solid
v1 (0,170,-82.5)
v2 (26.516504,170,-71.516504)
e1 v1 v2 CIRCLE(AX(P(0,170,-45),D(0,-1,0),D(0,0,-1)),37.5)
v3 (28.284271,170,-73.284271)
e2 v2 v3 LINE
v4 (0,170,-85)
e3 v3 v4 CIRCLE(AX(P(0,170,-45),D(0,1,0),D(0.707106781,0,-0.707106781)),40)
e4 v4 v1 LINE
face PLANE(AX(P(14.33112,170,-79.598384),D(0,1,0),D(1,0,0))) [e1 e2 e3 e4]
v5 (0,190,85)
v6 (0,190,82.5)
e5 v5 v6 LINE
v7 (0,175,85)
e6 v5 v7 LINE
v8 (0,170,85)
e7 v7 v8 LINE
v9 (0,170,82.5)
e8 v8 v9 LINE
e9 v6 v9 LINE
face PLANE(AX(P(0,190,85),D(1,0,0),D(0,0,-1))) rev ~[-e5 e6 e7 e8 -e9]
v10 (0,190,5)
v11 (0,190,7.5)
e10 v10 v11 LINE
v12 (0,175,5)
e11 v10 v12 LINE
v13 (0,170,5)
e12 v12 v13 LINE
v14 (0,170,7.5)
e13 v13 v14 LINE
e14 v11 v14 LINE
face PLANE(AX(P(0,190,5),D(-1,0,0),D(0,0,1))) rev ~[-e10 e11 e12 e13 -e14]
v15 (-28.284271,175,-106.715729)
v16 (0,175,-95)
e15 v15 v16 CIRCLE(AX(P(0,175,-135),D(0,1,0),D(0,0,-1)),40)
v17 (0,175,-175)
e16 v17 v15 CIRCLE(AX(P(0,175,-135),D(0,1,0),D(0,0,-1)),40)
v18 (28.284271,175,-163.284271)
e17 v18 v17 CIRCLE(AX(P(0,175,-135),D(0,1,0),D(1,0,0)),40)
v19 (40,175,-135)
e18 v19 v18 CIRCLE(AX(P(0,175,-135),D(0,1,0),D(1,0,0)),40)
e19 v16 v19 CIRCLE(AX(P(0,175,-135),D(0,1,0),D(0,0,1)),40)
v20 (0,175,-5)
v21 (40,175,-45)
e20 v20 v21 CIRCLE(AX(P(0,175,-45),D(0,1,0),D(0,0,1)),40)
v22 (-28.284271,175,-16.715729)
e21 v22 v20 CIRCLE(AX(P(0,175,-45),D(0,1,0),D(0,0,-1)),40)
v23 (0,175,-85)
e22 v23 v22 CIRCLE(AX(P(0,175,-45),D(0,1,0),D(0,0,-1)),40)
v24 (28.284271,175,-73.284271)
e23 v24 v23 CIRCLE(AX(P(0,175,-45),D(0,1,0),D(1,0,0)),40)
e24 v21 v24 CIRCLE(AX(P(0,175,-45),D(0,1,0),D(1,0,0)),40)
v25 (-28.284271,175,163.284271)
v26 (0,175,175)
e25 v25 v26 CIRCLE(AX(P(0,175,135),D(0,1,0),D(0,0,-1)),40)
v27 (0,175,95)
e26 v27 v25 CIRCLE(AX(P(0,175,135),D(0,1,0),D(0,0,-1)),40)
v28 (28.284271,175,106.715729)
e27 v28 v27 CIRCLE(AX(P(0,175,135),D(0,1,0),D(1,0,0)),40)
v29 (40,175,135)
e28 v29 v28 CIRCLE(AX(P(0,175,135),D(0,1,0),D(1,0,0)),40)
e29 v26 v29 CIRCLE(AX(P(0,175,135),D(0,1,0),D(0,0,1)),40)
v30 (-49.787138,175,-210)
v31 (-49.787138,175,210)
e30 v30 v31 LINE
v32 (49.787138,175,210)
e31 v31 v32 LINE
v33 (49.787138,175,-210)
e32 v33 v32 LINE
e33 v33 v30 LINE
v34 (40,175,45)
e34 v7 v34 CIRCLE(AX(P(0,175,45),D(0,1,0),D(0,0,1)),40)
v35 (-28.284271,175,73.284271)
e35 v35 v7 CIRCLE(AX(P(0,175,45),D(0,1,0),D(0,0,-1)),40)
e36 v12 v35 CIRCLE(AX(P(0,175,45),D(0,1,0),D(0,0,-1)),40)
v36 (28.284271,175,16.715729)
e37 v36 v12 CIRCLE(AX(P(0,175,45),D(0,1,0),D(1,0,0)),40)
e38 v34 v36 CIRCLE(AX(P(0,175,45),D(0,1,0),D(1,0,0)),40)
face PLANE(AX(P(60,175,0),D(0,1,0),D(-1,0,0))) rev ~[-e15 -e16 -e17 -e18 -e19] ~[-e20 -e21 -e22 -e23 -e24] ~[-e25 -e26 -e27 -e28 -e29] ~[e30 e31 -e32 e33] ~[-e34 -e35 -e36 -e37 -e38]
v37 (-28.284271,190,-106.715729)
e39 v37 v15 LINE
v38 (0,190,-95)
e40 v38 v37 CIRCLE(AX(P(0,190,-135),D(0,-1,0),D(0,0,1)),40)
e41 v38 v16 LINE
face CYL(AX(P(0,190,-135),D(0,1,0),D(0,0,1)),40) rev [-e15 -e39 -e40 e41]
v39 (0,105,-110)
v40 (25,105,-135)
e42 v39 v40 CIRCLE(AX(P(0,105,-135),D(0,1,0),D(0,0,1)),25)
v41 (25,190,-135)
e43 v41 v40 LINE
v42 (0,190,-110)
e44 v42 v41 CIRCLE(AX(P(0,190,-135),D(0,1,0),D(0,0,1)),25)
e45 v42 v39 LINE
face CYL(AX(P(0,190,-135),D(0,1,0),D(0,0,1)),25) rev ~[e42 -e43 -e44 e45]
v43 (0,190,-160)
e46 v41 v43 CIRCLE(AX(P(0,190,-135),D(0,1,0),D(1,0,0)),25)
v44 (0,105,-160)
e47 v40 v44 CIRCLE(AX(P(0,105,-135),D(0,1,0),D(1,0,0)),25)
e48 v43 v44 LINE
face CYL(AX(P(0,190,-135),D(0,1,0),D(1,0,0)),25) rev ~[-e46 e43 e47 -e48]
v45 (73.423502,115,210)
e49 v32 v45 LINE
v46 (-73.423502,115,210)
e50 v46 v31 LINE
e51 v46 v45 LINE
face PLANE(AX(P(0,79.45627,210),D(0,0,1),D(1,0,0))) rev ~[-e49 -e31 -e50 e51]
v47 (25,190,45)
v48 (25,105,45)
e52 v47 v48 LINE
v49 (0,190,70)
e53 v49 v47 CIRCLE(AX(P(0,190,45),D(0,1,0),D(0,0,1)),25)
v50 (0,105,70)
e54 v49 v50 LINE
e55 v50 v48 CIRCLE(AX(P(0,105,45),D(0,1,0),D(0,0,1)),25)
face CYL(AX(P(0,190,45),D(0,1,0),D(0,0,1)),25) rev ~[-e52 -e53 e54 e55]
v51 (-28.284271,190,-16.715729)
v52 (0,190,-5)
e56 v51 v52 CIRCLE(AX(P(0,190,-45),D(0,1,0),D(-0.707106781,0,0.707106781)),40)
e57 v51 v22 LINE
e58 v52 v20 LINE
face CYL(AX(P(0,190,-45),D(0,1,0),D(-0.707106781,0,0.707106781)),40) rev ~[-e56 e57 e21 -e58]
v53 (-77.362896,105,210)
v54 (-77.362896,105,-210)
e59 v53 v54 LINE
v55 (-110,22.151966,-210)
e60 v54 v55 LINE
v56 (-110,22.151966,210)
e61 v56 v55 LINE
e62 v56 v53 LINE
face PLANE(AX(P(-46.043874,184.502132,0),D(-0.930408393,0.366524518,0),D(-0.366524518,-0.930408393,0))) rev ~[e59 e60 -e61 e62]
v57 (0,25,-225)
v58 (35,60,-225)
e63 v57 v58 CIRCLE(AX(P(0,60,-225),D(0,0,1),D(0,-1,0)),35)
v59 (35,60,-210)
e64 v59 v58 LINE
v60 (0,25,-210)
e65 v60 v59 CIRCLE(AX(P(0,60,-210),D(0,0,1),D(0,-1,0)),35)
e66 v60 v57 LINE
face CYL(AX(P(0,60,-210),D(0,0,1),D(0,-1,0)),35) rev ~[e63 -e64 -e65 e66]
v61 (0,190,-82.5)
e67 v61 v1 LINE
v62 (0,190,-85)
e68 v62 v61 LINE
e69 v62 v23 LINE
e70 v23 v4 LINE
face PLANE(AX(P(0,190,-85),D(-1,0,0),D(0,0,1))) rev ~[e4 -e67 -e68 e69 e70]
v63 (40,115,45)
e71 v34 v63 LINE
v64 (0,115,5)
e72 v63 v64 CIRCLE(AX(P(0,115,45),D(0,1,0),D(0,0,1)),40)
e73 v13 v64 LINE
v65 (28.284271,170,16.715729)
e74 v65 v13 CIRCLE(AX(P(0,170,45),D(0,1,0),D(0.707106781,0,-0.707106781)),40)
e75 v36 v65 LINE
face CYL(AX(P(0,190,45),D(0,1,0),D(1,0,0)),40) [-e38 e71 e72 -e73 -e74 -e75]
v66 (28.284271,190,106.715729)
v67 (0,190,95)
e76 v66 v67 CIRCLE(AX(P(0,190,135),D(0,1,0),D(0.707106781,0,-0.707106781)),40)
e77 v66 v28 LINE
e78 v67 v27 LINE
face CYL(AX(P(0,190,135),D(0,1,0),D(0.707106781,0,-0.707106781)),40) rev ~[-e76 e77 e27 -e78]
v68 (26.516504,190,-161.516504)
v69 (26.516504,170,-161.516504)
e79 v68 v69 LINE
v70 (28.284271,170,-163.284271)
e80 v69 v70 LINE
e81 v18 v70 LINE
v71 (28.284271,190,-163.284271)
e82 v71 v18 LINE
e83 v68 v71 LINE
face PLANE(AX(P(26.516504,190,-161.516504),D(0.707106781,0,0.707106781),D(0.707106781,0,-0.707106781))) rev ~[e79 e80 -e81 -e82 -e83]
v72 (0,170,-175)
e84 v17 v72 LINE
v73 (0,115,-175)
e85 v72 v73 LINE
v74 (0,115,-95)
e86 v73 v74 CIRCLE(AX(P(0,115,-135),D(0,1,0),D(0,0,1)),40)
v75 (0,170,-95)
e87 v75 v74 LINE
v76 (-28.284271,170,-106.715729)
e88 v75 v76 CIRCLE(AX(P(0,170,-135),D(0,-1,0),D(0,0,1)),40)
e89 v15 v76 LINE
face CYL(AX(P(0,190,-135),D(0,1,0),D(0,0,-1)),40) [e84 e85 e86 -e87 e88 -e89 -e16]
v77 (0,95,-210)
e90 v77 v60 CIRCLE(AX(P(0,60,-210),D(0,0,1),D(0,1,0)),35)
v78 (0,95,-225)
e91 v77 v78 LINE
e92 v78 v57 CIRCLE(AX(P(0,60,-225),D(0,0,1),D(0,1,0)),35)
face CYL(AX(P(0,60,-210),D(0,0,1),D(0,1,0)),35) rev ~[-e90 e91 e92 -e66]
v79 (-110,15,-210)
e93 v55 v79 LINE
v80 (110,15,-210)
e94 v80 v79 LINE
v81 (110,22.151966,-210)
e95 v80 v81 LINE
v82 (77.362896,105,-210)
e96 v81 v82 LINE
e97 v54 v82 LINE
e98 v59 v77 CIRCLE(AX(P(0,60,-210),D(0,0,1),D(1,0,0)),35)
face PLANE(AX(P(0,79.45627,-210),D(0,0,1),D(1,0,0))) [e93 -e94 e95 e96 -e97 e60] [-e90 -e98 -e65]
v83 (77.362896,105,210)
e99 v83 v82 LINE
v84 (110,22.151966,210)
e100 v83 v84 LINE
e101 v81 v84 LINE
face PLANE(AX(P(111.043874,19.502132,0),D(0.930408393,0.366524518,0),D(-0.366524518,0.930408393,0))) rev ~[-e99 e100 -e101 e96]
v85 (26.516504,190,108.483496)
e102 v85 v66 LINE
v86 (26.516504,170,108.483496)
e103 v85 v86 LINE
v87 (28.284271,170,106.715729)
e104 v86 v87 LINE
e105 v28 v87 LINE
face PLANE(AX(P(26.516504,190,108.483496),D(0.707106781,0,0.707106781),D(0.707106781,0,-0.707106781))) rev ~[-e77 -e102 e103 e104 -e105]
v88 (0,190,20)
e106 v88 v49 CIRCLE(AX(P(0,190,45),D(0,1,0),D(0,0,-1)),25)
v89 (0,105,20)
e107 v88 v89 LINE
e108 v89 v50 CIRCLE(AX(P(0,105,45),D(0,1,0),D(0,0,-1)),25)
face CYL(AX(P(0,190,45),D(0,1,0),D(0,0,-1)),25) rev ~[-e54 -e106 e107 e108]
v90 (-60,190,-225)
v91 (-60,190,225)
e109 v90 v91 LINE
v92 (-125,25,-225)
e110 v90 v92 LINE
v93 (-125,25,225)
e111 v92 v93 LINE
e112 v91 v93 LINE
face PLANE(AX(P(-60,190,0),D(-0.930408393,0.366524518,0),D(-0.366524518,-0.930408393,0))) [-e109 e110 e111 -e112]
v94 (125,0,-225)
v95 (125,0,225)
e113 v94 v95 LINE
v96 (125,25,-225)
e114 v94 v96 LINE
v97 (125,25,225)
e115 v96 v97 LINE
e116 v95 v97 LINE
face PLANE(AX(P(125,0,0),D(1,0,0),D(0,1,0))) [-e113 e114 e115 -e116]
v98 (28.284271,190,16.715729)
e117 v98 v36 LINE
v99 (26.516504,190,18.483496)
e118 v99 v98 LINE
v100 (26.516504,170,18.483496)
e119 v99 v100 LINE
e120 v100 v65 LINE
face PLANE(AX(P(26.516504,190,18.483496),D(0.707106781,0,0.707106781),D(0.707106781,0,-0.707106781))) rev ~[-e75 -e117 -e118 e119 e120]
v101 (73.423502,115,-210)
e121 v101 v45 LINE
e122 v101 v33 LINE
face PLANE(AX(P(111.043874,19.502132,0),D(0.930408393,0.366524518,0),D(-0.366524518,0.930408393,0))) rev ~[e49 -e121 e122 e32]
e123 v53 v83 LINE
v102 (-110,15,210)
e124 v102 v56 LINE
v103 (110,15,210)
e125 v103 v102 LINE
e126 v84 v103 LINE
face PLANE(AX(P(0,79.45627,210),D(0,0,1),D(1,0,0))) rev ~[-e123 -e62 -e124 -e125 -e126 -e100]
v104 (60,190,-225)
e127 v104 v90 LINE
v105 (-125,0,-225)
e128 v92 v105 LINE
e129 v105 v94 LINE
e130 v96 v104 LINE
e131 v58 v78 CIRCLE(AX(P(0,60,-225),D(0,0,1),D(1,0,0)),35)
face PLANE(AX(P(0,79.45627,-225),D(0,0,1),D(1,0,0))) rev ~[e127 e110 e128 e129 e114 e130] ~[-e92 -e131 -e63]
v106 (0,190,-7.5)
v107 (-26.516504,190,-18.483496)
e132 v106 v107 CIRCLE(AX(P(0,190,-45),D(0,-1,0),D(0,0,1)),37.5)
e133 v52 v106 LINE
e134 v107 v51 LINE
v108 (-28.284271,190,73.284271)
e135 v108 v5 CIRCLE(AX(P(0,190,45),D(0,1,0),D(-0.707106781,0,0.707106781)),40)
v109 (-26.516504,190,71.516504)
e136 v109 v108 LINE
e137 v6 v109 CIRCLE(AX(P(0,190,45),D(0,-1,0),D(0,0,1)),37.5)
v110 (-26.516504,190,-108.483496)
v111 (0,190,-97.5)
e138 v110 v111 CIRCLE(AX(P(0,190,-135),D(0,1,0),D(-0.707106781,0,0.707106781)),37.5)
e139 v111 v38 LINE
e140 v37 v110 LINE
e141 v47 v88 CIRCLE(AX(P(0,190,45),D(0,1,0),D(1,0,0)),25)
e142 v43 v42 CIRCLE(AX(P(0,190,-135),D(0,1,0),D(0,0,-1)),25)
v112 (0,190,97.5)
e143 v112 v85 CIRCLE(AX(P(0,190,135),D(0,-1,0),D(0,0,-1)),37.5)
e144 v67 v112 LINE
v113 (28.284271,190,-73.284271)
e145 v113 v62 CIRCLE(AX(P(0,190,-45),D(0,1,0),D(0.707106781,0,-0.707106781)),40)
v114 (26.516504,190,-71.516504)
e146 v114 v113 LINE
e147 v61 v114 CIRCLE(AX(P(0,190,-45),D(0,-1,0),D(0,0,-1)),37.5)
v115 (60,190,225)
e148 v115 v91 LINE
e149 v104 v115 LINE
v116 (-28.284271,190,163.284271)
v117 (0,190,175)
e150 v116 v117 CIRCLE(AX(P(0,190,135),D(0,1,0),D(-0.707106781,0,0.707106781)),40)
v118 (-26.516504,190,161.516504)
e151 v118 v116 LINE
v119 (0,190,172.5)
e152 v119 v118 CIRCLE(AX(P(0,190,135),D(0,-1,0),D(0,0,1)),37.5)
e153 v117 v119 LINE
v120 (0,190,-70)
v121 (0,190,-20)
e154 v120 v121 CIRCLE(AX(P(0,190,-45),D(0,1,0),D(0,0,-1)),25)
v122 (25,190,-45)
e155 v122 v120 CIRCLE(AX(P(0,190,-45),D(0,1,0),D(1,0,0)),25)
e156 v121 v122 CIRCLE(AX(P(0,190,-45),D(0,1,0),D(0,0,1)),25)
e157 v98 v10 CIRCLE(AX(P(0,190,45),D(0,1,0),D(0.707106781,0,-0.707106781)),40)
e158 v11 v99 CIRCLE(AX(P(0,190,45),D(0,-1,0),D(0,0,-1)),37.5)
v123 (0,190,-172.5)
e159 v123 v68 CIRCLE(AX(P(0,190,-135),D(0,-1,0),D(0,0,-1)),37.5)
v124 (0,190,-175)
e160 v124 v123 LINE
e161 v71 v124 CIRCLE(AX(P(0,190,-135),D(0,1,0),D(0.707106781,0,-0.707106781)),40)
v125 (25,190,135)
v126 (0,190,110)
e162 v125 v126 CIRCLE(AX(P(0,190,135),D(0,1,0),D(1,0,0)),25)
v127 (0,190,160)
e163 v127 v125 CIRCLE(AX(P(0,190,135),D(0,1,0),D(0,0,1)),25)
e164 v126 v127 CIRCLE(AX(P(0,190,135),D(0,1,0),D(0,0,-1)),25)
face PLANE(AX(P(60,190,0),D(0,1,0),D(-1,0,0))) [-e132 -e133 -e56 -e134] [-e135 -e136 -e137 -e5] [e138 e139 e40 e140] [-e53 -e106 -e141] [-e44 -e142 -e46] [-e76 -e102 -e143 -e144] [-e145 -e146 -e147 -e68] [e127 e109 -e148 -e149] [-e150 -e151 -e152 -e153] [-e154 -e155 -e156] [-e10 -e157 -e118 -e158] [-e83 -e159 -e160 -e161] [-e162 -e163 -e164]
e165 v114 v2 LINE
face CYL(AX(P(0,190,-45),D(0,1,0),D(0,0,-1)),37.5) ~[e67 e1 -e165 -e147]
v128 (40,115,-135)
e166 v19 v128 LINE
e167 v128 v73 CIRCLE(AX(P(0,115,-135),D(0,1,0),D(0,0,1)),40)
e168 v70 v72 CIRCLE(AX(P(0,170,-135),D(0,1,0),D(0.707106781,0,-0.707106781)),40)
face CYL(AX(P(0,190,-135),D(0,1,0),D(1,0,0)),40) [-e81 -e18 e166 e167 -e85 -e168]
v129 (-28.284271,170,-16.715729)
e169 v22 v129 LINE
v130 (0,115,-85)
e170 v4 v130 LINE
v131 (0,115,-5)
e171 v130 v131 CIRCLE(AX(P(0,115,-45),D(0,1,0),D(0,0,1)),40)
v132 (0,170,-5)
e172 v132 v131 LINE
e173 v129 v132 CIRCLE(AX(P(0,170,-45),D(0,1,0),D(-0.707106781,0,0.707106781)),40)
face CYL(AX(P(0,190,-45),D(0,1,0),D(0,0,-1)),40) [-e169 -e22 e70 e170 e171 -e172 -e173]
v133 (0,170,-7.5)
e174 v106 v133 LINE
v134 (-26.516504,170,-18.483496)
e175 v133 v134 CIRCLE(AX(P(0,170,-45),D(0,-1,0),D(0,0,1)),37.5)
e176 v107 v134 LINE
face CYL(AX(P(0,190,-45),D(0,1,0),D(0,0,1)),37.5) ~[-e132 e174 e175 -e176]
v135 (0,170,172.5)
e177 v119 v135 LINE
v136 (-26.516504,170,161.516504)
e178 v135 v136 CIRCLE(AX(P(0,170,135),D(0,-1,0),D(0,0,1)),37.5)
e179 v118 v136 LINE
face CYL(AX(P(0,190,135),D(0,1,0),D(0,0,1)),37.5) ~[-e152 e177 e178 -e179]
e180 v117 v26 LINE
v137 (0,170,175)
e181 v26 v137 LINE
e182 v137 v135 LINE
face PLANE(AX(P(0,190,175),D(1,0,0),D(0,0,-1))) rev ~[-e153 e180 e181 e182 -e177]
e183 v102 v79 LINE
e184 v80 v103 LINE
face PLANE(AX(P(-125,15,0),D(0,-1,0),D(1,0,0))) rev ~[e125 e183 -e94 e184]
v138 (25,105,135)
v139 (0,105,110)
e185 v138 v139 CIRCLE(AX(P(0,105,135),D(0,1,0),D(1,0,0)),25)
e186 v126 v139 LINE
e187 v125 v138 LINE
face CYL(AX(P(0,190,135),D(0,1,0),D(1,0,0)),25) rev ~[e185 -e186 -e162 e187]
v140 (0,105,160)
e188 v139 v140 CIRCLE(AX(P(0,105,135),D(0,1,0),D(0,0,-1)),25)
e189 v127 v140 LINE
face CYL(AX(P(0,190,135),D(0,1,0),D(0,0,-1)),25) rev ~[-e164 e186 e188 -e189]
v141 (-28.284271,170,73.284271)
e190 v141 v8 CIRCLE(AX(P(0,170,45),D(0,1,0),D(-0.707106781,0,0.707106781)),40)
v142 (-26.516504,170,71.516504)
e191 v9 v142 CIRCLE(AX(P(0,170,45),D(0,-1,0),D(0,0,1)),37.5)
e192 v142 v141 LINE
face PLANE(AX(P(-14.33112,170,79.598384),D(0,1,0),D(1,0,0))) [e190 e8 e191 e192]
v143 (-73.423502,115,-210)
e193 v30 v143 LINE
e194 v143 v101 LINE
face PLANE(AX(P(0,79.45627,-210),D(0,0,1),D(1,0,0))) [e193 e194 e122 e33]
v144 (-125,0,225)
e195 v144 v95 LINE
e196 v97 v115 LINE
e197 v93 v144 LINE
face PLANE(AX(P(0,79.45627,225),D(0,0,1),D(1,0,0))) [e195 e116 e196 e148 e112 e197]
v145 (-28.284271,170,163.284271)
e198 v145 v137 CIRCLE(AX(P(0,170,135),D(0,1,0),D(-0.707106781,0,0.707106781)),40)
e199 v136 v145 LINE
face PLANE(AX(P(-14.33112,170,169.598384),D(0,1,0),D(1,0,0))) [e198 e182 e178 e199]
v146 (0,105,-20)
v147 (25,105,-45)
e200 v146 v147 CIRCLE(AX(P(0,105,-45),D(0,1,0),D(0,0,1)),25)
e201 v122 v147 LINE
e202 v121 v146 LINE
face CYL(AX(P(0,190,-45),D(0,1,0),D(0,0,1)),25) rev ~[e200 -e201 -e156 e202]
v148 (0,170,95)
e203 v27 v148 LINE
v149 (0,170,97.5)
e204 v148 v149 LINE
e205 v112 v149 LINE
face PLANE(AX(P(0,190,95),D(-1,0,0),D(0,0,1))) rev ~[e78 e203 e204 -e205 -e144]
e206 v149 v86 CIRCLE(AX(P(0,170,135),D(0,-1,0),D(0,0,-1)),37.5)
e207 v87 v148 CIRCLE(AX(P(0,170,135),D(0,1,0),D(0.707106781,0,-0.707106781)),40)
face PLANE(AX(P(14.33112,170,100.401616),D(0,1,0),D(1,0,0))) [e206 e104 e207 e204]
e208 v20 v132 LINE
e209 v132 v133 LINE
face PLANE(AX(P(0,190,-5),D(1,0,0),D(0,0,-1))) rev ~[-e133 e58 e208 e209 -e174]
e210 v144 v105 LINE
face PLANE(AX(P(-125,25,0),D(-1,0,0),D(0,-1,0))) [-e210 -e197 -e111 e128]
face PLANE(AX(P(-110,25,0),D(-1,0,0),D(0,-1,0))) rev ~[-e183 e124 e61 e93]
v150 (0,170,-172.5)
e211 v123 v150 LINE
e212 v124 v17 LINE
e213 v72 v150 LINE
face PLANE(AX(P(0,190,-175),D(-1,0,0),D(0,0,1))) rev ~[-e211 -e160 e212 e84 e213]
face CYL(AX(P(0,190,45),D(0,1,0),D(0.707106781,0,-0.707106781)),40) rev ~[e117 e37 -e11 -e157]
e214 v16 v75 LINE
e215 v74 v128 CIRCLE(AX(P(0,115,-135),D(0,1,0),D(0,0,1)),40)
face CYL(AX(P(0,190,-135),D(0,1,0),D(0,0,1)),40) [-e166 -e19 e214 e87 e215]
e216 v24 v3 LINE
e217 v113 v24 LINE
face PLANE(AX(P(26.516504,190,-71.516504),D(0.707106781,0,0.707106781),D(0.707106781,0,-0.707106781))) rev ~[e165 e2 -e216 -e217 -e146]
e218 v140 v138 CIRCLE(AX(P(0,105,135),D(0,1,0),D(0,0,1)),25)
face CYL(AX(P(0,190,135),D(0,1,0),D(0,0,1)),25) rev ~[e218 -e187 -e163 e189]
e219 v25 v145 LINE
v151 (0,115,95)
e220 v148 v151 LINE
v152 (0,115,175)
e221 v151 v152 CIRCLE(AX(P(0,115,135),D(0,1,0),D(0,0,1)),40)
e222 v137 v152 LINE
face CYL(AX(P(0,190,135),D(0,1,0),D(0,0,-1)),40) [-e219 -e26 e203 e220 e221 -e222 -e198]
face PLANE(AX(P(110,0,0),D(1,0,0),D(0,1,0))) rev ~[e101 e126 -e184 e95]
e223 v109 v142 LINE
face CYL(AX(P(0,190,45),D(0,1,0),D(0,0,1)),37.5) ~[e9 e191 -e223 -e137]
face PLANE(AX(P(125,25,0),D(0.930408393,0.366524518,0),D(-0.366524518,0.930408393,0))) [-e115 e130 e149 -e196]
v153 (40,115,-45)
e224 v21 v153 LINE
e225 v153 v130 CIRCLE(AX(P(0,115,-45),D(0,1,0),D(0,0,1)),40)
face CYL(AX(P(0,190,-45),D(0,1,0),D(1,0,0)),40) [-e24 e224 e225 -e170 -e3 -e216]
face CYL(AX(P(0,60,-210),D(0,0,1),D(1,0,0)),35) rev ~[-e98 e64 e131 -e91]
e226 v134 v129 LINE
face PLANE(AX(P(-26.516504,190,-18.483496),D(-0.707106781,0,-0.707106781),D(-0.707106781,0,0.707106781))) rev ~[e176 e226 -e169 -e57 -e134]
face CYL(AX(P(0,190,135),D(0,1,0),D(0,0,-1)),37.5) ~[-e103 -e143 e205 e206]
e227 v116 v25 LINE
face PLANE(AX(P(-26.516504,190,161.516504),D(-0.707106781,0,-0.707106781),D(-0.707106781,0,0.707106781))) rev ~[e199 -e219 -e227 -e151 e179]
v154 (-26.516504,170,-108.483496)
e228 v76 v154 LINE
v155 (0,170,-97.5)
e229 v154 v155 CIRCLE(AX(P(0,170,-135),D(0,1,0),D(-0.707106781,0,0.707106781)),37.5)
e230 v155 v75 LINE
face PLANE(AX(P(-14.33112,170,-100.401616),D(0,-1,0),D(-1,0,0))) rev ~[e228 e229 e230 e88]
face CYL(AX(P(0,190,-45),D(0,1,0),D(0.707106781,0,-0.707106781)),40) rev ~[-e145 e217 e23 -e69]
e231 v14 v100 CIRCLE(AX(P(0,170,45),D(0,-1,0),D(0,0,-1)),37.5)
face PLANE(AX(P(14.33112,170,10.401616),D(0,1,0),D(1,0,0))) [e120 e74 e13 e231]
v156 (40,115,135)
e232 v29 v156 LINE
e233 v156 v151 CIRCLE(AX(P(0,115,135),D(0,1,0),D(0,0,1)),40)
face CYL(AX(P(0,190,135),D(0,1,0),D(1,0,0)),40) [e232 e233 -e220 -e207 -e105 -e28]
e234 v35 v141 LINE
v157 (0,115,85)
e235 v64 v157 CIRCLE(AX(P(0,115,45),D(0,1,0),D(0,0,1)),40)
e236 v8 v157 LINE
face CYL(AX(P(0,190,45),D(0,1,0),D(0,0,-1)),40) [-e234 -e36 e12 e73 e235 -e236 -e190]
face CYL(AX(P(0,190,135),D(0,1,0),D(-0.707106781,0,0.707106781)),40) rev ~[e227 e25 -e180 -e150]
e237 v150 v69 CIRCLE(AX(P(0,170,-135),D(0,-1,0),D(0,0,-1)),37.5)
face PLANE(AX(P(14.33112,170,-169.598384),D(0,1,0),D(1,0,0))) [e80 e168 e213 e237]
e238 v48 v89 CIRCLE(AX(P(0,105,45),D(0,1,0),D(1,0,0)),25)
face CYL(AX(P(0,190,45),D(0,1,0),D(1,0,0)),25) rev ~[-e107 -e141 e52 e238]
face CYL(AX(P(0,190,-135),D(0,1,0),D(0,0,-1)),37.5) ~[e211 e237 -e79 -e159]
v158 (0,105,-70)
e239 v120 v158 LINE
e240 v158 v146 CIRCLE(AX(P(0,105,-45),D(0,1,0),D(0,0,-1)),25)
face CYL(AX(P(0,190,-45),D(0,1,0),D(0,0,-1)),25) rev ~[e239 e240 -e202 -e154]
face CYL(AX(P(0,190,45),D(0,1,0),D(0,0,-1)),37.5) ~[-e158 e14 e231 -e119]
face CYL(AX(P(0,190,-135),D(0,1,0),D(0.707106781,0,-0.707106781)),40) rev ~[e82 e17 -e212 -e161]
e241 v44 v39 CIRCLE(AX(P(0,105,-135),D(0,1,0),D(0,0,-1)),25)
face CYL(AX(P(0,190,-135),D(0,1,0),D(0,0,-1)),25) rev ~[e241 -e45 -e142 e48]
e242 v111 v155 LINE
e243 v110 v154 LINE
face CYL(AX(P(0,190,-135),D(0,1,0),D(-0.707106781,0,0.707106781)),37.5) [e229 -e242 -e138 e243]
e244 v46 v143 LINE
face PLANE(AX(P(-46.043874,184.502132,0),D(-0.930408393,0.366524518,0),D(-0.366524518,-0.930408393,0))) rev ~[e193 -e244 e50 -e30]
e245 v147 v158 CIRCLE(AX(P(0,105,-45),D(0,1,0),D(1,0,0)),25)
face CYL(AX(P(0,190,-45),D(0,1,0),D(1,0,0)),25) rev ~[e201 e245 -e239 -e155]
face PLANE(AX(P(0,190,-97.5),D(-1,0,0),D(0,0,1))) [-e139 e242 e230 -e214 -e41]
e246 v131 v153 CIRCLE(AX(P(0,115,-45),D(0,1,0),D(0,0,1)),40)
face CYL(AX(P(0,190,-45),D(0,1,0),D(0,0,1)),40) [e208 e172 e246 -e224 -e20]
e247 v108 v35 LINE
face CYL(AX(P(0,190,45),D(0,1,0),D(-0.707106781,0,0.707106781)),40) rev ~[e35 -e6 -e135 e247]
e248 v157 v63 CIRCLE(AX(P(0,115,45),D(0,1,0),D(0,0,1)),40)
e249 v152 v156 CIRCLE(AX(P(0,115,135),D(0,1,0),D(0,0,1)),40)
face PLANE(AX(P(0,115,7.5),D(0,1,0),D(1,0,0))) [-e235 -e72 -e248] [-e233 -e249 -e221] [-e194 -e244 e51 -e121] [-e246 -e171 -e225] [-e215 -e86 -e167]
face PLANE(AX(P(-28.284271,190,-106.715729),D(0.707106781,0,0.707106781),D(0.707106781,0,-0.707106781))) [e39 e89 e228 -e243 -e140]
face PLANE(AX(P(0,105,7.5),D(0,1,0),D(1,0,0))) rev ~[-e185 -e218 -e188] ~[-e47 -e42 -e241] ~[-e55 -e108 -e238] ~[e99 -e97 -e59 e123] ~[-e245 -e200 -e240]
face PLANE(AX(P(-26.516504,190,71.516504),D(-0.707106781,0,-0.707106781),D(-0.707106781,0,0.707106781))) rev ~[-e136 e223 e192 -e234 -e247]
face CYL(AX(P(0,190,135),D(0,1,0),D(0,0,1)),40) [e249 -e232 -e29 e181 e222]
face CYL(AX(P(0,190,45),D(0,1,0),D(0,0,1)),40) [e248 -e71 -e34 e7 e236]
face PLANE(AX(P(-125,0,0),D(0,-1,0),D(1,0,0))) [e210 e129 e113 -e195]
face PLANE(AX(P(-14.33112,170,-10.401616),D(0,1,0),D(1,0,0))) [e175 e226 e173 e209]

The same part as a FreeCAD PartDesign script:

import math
import FreeCAD as App
import Part
import Sketcher
Q = App.Units.Quantity


def faces_at(feature, points):
    """Names of the faces that lie closest to the given points."""
    faces = feature.Shape.Faces
    near = lambda p: min(range(len(faces)), key=lambda i: faces[i].distToShape(Part.Vertex(*p))[0])
    return sorted({f"Face{near(p) + 1}" for p in points})

doc = App.newDocument("Part")
body = doc.addObject("PartDesign::Body", "Body")

sketch1 = doc.addObject("Sketcher::SketchObject", "Sketch")
body.addObject(sketch1)
sketch1.AttachmentSupport = (doc.XY_Plane, [""])
sketch1.MapMode = "FlatFace"
sketch1.addGeometry([
    Part.LineSegment(App.Vector(-125, 0, 0), App.Vector(125, 0, 0)),
    Part.LineSegment(App.Vector(125, 0, 0), App.Vector(125, 25, 0)),
    Part.LineSegment(App.Vector(125, 25, 0), App.Vector(60, 190, 0)),
    Part.LineSegment(App.Vector(60, 190, 0), App.Vector(-60, 190, 0)),
    Part.LineSegment(App.Vector(-60, 190, 0), App.Vector(-125, 25, 0)),
    Part.LineSegment(App.Vector(-125, 25, 0), App.Vector(-125, 0, 0)),
], False)
sketch1.addConstraint([
    Sketcher.Constraint("Coincident", 0, 2, 1, 1),
    Sketcher.Constraint("Coincident", 1, 2, 2, 1),
    Sketcher.Constraint("Coincident", 2, 2, 3, 1),
    Sketcher.Constraint("Coincident", 3, 2, 4, 1),
    Sketcher.Constraint("Coincident", 4, 2, 5, 1),
    Sketcher.Constraint("Coincident", 5, 2, 0, 1),
    Sketcher.Constraint("Horizontal", 0),
    Sketcher.Constraint("Vertical", 1),
    Sketcher.Constraint("Horizontal", 3),
    Sketcher.Constraint("Vertical", 5),
    Sketcher.Constraint("Symmetric", 0, 2, 5, 2, -1, 1),
    Sketcher.Constraint("Horizontal", 1, 2, 4, 2),
    Sketcher.Constraint("Equal", 2, 4),
    Sketcher.Constraint("DistanceX", 0, 1, 0, 2, Q("250 mm")),
    Sketcher.Constraint("DistanceX", 3, 2, 3, 1, Q("120 mm")),
    Sketcher.Constraint("DistanceY", 1, 1, 1, 2, Q("25 mm")),
    Sketcher.Constraint("DistanceY", -1, 1, 2, 2, Q("190 mm")),
])
pad1 = doc.addObject("PartDesign::Pad", "Pad")
body.addObject(pad1)
pad1.Profile = sketch1
pad1.Length = 450
pad1.Midplane = True

sketch2 = doc.addObject("Sketcher::SketchObject", "Sketch001")
body.addObject(sketch2)
sketch2.AttachmentSupport = (doc.XZ_Plane, [""])
sketch2.MapMode = "FlatFace"
sketch2.AttachmentOffset = App.Placement(App.Vector(0, 0, -190), App.Rotation())
sketch2.addGeometry([
    Part.ArcOfCircle(Part.Circle(App.Vector(0, 135, 0), App.Vector(0, 0, 1), 25), math.radians(90), math.radians(270)),
    Part.ArcOfCircle(Part.Circle(App.Vector(0, 135, 0), App.Vector(0, 0, 1), 25), math.radians(0), math.radians(90)),
    Part.ArcOfCircle(Part.Circle(App.Vector(0, 135, 0), App.Vector(0, 0, 1), 25), math.radians(-90), math.radians(0)),
    Part.ArcOfCircle(Part.Circle(App.Vector(0, 45, 0), App.Vector(0, 0, 1), 25), math.radians(90), math.radians(270)),
    Part.ArcOfCircle(Part.Circle(App.Vector(0, 45, 0), App.Vector(0, 0, 1), 25), math.radians(0), math.radians(90)),
    Part.ArcOfCircle(Part.Circle(App.Vector(0, 45, 0), App.Vector(0, 0, 1), 25), math.radians(-90), math.radians(0)),
    Part.ArcOfCircle(Part.Circle(App.Vector(0, -45, 0), App.Vector(0, 0, 1), 25), math.radians(90), math.radians(270)),
    Part.ArcOfCircle(Part.Circle(App.Vector(0, -45, 0), App.Vector(0, 0, 1), 25), math.radians(0), math.radians(90)),
    Part.ArcOfCircle(Part.Circle(App.Vector(0, -45, 0), App.Vector(0, 0, 1), 25), math.radians(-90), math.radians(0)),
    Part.ArcOfCircle(Part.Circle(App.Vector(0, -135, 0), App.Vector(0, 0, 1), 25), math.radians(90), math.radians(270)),
    Part.ArcOfCircle(Part.Circle(App.Vector(0, -135, 0), App.Vector(0, 0, 1), 25), math.radians(0), math.radians(90)),
    Part.ArcOfCircle(Part.Circle(App.Vector(0, -135, 0), App.Vector(0, 0, 1), 25), math.radians(-90), math.radians(0)),
], False)
sketch2.addConstraint([
    Sketcher.Constraint("Tangent", 0, 1, 1, 2),
    Sketcher.Constraint("Tangent", 1, 1, 2, 2),
    Sketcher.Constraint("Tangent", 2, 1, 0, 2),
    Sketcher.Constraint("Tangent", 3, 1, 4, 2),
    Sketcher.Constraint("Tangent", 4, 1, 5, 2),
    Sketcher.Constraint("Tangent", 5, 1, 3, 2),
    Sketcher.Constraint("Tangent", 6, 1, 7, 2),
    Sketcher.Constraint("Tangent", 7, 1, 8, 2),
    Sketcher.Constraint("Tangent", 8, 1, 6, 2),
    Sketcher.Constraint("Tangent", 9, 1, 10, 2),
    Sketcher.Constraint("Tangent", 10, 1, 11, 2),
    Sketcher.Constraint("Tangent", 11, 1, 9, 2),
    Sketcher.Constraint("Equal", 2, 3),
    Sketcher.Constraint("Equal", 5, 6),
    Sketcher.Constraint("Equal", 8, 9),
    Sketcher.Constraint("Symmetric", 3, 3, 6, 3, -1, 1),
    Sketcher.Constraint("Symmetric", 0, 3, 9, 3, -1, 1),
    Sketcher.Constraint("Symmetric", 4, 1, 7, 1, -1),
    Sketcher.Constraint("Symmetric", 1, 1, 10, 1, -1),
    Sketcher.Constraint("PointOnObject", 0, 1, -2),
    Sketcher.Constraint("PointOnObject", 2, 1, -2),
    Sketcher.Constraint("PointOnObject", 3, 1, -2),
    Sketcher.Constraint("PointOnObject", 5, 1, -2),
    Sketcher.Constraint("PointOnObject", 6, 1, -2),
    Sketcher.Constraint("PointOnObject", 8, 1, -2),
    Sketcher.Constraint("PointOnObject", 9, 1, -2),
    Sketcher.Constraint("PointOnObject", 11, 1, -2),
    Sketcher.Constraint("Horizontal", 2, 3, 1, 1),
    Sketcher.Constraint("Horizontal", 5, 3, 4, 1),
    Sketcher.Constraint("Radius", 0, Q("25 mm")),
    Sketcher.Constraint("DistanceY", -1, 1, 0, 3, Q("135 mm")),
    Sketcher.Constraint("DistanceY", -1, 1, 3, 3, Q("45 mm")),
])
pocket1 = doc.addObject("PartDesign::Pocket", "Pocket")
body.addObject(pocket1)
pocket1.Profile = sketch2
pocket1.Length = 90
pocket1.Reversed = True
doc.recompute()

thickness = doc.addObject("PartDesign::Thickness", "Thickness")
body.addObject(thickness)
thickness.Base = (pocket1, faces_at(pocket1, [(0, 95, 225)]))
thickness.Value = 15
thickness.Reversed = True
thickness.Join = "Intersection"

sketch3 = doc.addObject("Sketcher::SketchObject", "Sketch002")
body.addObject(sketch3)
sketch3.AttachmentSupport = (doc.XZ_Plane, [""])
sketch3.MapMode = "FlatFace"
sketch3.AttachmentOffset = App.Placement(App.Vector(0, 0, -105), App.Rotation())
sketch3.addGeometry([
    Part.Circle(App.Vector(0, -135, 0), App.Vector(0, 0, 1), 40),
    Part.Circle(App.Vector(0, -45, 0), App.Vector(0, 0, 1), 40),
    Part.Circle(App.Vector(0, 45, 0), App.Vector(0, 0, 1), 40),
    Part.Circle(App.Vector(0, 135, 0), App.Vector(0, 0, 1), 40),
], False)
sketch3.addConstraint([
    Sketcher.Constraint("Equal", 0, 1),
    Sketcher.Constraint("Equal", 1, 2),
    Sketcher.Constraint("Equal", 2, 3),
    Sketcher.Constraint("Symmetric", 1, 3, 2, 3, -1, 1),
    Sketcher.Constraint("Symmetric", 0, 3, 3, 3, -1, 1),
    Sketcher.Constraint("PointOnObject", 0, 3, -2),
    Sketcher.Constraint("PointOnObject", 1, 3, -2),
    Sketcher.Constraint("Diameter", 0, Q("80 mm")),
    Sketcher.Constraint("DistanceY", 0, 3, -1, 1, Q("135 mm")),
    Sketcher.Constraint("DistanceY", 1, 3, -1, 1, Q("45 mm")),
])
pocket2 = doc.addObject("PartDesign::Pocket", "Pocket001")
body.addObject(pocket2)
pocket2.Profile = sketch3
pocket2.Length = 20
pocket2.Reversed = True

sketch4 = doc.addObject("Sketcher::SketchObject", "Sketch003")
body.addObject(sketch4)
sketch4.AttachmentSupport = (doc.XZ_Plane, [""])
sketch4.MapMode = "FlatFace"
sketch4.AttachmentOffset = App.Placement(App.Vector(0, 0, -115), App.Rotation())
sketch4.addGeometry([
    Part.LineSegment(App.Vector(-77, -210, 0), App.Vector(-77, 225, 0)),
    Part.LineSegment(App.Vector(-77, 225, 0), App.Vector(77, 225, 0)),
    Part.LineSegment(App.Vector(77, 225, 0), App.Vector(77, -210, 0)),
    Part.LineSegment(App.Vector(77, -210, 0), App.Vector(-77, -210, 0)),
    Part.Circle(App.Vector(0, 135, 0), App.Vector(0, 0, 1), 40),
    Part.Circle(App.Vector(0, 45, 0), App.Vector(0, 0, 1), 40),
    Part.Circle(App.Vector(0, -45, 0), App.Vector(0, 0, 1), 40),
    Part.Circle(App.Vector(0, -135, 0), App.Vector(0, 0, 1), 40),
], False)
sketch4.addConstraint([
    Sketcher.Constraint("Coincident", 0, 2, 1, 1),
    Sketcher.Constraint("Coincident", 1, 2, 2, 1),
    Sketcher.Constraint("Coincident", 2, 2, 3, 1),
    Sketcher.Constraint("Coincident", 3, 2, 0, 1),
    Sketcher.Constraint("Vertical", 0),
    Sketcher.Constraint("Horizontal", 1),
    Sketcher.Constraint("Vertical", 2),
    Sketcher.Constraint("Horizontal", 3),
    Sketcher.Constraint("Equal", 4, 5),
    Sketcher.Constraint("Equal", 5, 6),
    Sketcher.Constraint("Equal", 6, 7),
    Sketcher.Constraint("Symmetric", 5, 3, 6, 3, -1, 1),
    Sketcher.Constraint("Symmetric", 4, 3, 7, 3, -1, 1),
    Sketcher.Constraint("PointOnObject", 4, 3, -2),
    Sketcher.Constraint("PointOnObject", 5, 3, -2),
    Sketcher.Constraint("Diameter", 4, Q("80 mm")),
    Sketcher.Constraint("DistanceY", 0, 1, 0, 2, Q("435 mm")),
    Sketcher.Constraint("DistanceY", -1, 1, 4, 3, Q("135 mm")),
    Sketcher.Constraint("DistanceY", -1, 1, 5, 3, Q("45 mm")),
    Sketcher.Constraint("DistanceY", -1, 1, 0, 2, Q("225 mm")),
    Sketcher.Constraint("DistanceX", 1, 1, 1, 2, Q("154.725792 mm")),
    Sketcher.Constraint("DistanceX", 0, 2, -1, 1, Q("77.362896 mm")),
])
pad2 = doc.addObject("PartDesign::Pad", "Pad001")
body.addObject(pad2)
pad2.Profile = sketch4
pad2.Length = 10

sketch5 = doc.addObject("Sketcher::SketchObject", "Sketch004")
body.addObject(sketch5)
sketch5.AttachmentSupport = (doc.XY_Plane, [""])
sketch5.MapMode = "FlatFace"
sketch5.AttachmentOffset = App.Placement(App.Vector(0, 0, 225), App.Rotation())
sketch5.addGeometry([
    Part.LineSegment(App.Vector(-125, 25, 0), App.Vector(-125, 0, 0)),
    Part.LineSegment(App.Vector(-125, 0, 0), App.Vector(125, 0, 0)),
    Part.LineSegment(App.Vector(125, 0, 0), App.Vector(125, 25, 0)),
    Part.LineSegment(App.Vector(125, 25, 0), App.Vector(60, 190, 0)),
    Part.LineSegment(App.Vector(60, 190, 0), App.Vector(-60, 190, 0)),
    Part.LineSegment(App.Vector(-60, 190, 0), App.Vector(-125, 25, 0)),
], False)
sketch5.addConstraint([
    Sketcher.Constraint("Coincident", 0, 2, 1, 1),
    Sketcher.Constraint("Coincident", 1, 2, 2, 1),
    Sketcher.Constraint("Coincident", 2, 2, 3, 1),
    Sketcher.Constraint("Coincident", 3, 2, 4, 1),
    Sketcher.Constraint("Coincident", 4, 2, 5, 1),
    Sketcher.Constraint("Coincident", 5, 2, 0, 1),
    Sketcher.Constraint("Vertical", 0),
    Sketcher.Constraint("Horizontal", 1),
    Sketcher.Constraint("Vertical", 2),
    Sketcher.Constraint("Horizontal", 4),
    Sketcher.Constraint("Symmetric", 0, 2, 1, 2, -1, 1),
    Sketcher.Constraint("Horizontal", 2, 2, 5, 2),
    Sketcher.Constraint("Equal", 3, 5),
    Sketcher.Constraint("DistanceX", 1, 1, 1, 2, Q("250 mm")),
    Sketcher.Constraint("DistanceX", 4, 2, 4, 1, Q("120 mm")),
    Sketcher.Constraint("DistanceY", 0, 2, 0, 1, Q("25 mm")),
    Sketcher.Constraint("DistanceY", -1, 1, 3, 2, Q("190 mm")),
])
pad3 = doc.addObject("PartDesign::Pad", "Pad002")
body.addObject(pad3)
pad3.Profile = sketch5
pad3.Length = 15
pad3.Reversed = True

sketch6 = doc.addObject("Sketcher::SketchObject", "Sketch005")
body.addObject(sketch6)
sketch6.AttachmentSupport = (doc.XY_Plane, [""])
sketch6.MapMode = "FlatFace"
sketch6.AttachmentOffset = App.Placement(App.Vector(0, 0, -210), App.Rotation())
sketch6.addGeometry([
    Part.ArcOfCircle(Part.Circle(App.Vector(0, 60, 0), App.Vector(0, 0, 1), 35), math.radians(0), math.radians(90)),
    Part.ArcOfCircle(Part.Circle(App.Vector(0, 60, 0), App.Vector(0, 0, 1), 35), math.radians(90), math.radians(270)),
    Part.ArcOfCircle(Part.Circle(App.Vector(0, 60, 0), App.Vector(0, 0, 1), 35), math.radians(-90), math.radians(0)),
], False)
sketch6.addConstraint([
    Sketcher.Constraint("Tangent", 0, 2, 1, 1),
    Sketcher.Constraint("Tangent", 1, 2, 2, 1),
    Sketcher.Constraint("Tangent", 2, 2, 0, 1),
    Sketcher.Constraint("PointOnObject", 0, 3, -2),
    Sketcher.Constraint("PointOnObject", 0, 2, -2),
    Sketcher.Constraint("PointOnObject", 1, 2, -2),
    Sketcher.Constraint("Horizontal", 1, 3, 2, 2),
    Sketcher.Constraint("Radius", 0, Q("35 mm")),
    Sketcher.Constraint("DistanceY", -1, 1, 0, 3, Q("60 mm")),
])
pocket3 = doc.addObject("PartDesign::Pocket", "Pocket002")
body.addObject(pocket3)
pocket3.Profile = sketch6
pocket3.Type = "ThroughAll"

sketch7 = doc.addObject("Sketcher::SketchObject", "Sketch006")
body.addObject(sketch7)
sketch7.AttachmentSupport = (doc.XZ_Plane, [""])
sketch7.MapMode = "FlatFace"
sketch7.AttachmentOffset = App.Placement(App.Vector(0, 0, -190), App.Rotation())
sketch7.addGeometry([
    Part.LineSegment(App.Vector(0, -95, 0), App.Vector(0, -97.5, 0)),
    Part.ArcOfCircle(Part.Circle(App.Vector(0, -135, 0), App.Vector(0, 0, 1), 37.5), math.radians(90), math.radians(135)),
    Part.LineSegment(App.Vector(-26.5, -108.5, 0), App.Vector(-28.3, -106.7, 0)),
    Part.ArcOfCircle(Part.Circle(App.Vector(0, -135, 0), App.Vector(0, 0, 1), 40), math.radians(90), math.radians(135)),
    Part.LineSegment(App.Vector(26.5, -161.5, 0), App.Vector(28.3, -163.3, 0)),
    Part.ArcOfCircle(Part.Circle(App.Vector(0, -135, 0), App.Vector(0, 0, 1), 40), math.radians(-90), math.radians(-45)),
    Part.LineSegment(App.Vector(0, -175, 0), App.Vector(0, -172.5, 0)),
    Part.ArcOfCircle(Part.Circle(App.Vector(0, -135, 0), App.Vector(0, 0, 1), 37.5), math.radians(-90), math.radians(-45)),
    Part.LineSegment(App.Vector(-26.5, -18.5, 0), App.Vector(-28.3, -16.7, 0)),
    Part.ArcOfCircle(Part.Circle(App.Vector(0, -45, 0), App.Vector(0, 0, 1), 40), math.radians(90), math.radians(135)),
    Part.LineSegment(App.Vector(0, -5, 0), App.Vector(0, -7.5, 0)),
    Part.ArcOfCircle(Part.Circle(App.Vector(0, -45, 0), App.Vector(0, 0, 1), 37.5), math.radians(90), math.radians(135)),
    Part.LineSegment(App.Vector(26.5, -71.5, 0), App.Vector(28.3, -73.3, 0)),
    Part.ArcOfCircle(Part.Circle(App.Vector(0, -45, 0), App.Vector(0, 0, 1), 40), math.radians(-90), math.radians(-45)),
    Part.LineSegment(App.Vector(0, -85, 0), App.Vector(0, -82.5, 0)),
    Part.ArcOfCircle(Part.Circle(App.Vector(0, -45, 0), App.Vector(0, 0, 1), 37.5), math.radians(-90), math.radians(-45)),
    Part.LineSegment(App.Vector(-26.5, 71.5, 0), App.Vector(-28.3, 73.3, 0)),
    Part.ArcOfCircle(Part.Circle(App.Vector(0, 45, 0), App.Vector(0, 0, 1), 40), math.radians(90), math.radians(135)),
    Part.LineSegment(App.Vector(0, 85, 0), App.Vector(0, 82.5, 0)),
    Part.ArcOfCircle(Part.Circle(App.Vector(0, 45, 0), App.Vector(0, 0, 1), 37.5), math.radians(90), math.radians(135)),
    Part.LineSegment(App.Vector(26.5, 18.5, 0), App.Vector(28.3, 16.7, 0)),
    Part.ArcOfCircle(Part.Circle(App.Vector(0, 45, 0), App.Vector(0, 0, 1), 40), math.radians(-90), math.radians(-45)),
    Part.LineSegment(App.Vector(0, 5, 0), App.Vector(0, 7.5, 0)),
    Part.ArcOfCircle(Part.Circle(App.Vector(0, 45, 0), App.Vector(0, 0, 1), 37.5), math.radians(-90), math.radians(-45)),
    Part.LineSegment(App.Vector(-26.5, 161.5, 0), App.Vector(-28.3, 163.3, 0)),
    Part.ArcOfCircle(Part.Circle(App.Vector(0, 135, 0), App.Vector(0, 0, 1), 40), math.radians(90), math.radians(135)),
    Part.LineSegment(App.Vector(0, 175, 0), App.Vector(0, 172.5, 0)),
    Part.ArcOfCircle(Part.Circle(App.Vector(0, 135, 0), App.Vector(0, 0, 1), 37.5), math.radians(90), math.radians(135)),
    Part.LineSegment(App.Vector(26.5, 108.5, 0), App.Vector(28.3, 106.7, 0)),
    Part.ArcOfCircle(Part.Circle(App.Vector(0, 135, 0), App.Vector(0, 0, 1), 40), math.radians(-90), math.radians(-45)),
    Part.LineSegment(App.Vector(0, 95, 0), App.Vector(0, 97.5, 0)),
    Part.ArcOfCircle(Part.Circle(App.Vector(0, 135, 0), App.Vector(0, 0, 1), 37.5), math.radians(-90), math.radians(-45)),
], False)
sketch7.addConstraint([
    Sketcher.Constraint("Coincident", 0, 2, 1, 1),
    Sketcher.Constraint("Coincident", 1, 2, 2, 1),
    Sketcher.Constraint("Coincident", 2, 2, 3, 2),
    Sketcher.Constraint("Coincident", 3, 1, 0, 1),
    Sketcher.Constraint("Coincident", 4, 2, 5, 2),
    Sketcher.Constraint("Coincident", 5, 1, 6, 1),
    Sketcher.Constraint("Coincident", 6, 2, 7, 1),
    Sketcher.Constraint("Coincident", 7, 2, 4, 1),
    Sketcher.Constraint("Coincident", 8, 2, 9, 2),
    Sketcher.Constraint("Coincident", 9, 1, 10, 1),
    Sketcher.Constraint("Coincident", 10, 2, 11, 1),
    Sketcher.Constraint("Coincident", 11, 2, 8, 1),
    Sketcher.Constraint("Coincident", 12, 2, 13, 2),
    Sketcher.Constraint("Coincident", 13, 1, 14, 1),
    Sketcher.Constraint("Coincident", 14, 2, 15, 1),
    Sketcher.Constraint("Coincident", 15, 2, 12, 1),
    Sketcher.Constraint("Coincident", 16, 2, 17, 2),
    Sketcher.Constraint("Coincident", 17, 1, 18, 1),
    Sketcher.Constraint("Coincident", 18, 2, 19, 1),
    Sketcher.Constraint("Coincident", 19, 2, 16, 1),
    Sketcher.Constraint("Coincident", 20, 2, 21, 2),
    Sketcher.Constraint("Coincident", 21, 1, 22, 1),
    Sketcher.Constraint("Coincident", 22, 2, 23, 1),
    Sketcher.Constraint("Coincident", 23, 2, 20, 1),
    Sketcher.Constraint("Coincident", 24, 2, 25, 2),
    Sketcher.Constraint("Coincident", 25, 1, 26, 1),
    Sketcher.Constraint("Coincident", 26, 2, 27, 1),
    Sketcher.Constraint("Coincident", 27, 2, 24, 1),
    Sketcher.Constraint("Coincident", 28, 2, 29, 2),
    Sketcher.Constraint("Coincident", 29, 1, 30, 1),
    Sketcher.Constraint("Coincident", 30, 2, 31, 1),
    Sketcher.Constraint("Coincident", 31, 2, 28, 1),
    Sketcher.Constraint("Vertical", 0),
    Sketcher.Constraint("Vertical", 6),
    Sketcher.Constraint("Vertical", 10),
    Sketcher.Constraint("Vertical", 14),
    Sketcher.Constraint("Vertical", 18),
    Sketcher.Constraint("Vertical", 22),
    Sketcher.Constraint("Vertical", 26),
    Sketcher.Constraint("Vertical", 30),
    Sketcher.Constraint("Coincident", 3, 3, 1, 3),
    Sketcher.Constraint("Coincident", 5, 3, 1, 3),
    Sketcher.Constraint("Coincident", 7, 3, 1, 3),
    Sketcher.Constraint("Coincident", 11, 3, 9, 3),
    Sketcher.Constraint("Coincident", 13, 3, 9, 3),
    Sketcher.Constraint("Coincident", 15, 3, 9, 3),
    Sketcher.Constraint("Coincident", 19, 3, 17, 3),
    Sketcher.Constraint("Coincident", 21, 3, 17, 3),
    Sketcher.Constraint("Coincident", 23, 3, 17, 3),
    Sketcher.Constraint("Coincident", 27, 3, 25, 3),
    Sketcher.Constraint("Coincident", 29, 3, 25, 3),
    Sketcher.Constraint("Coincident", 31, 3, 25, 3),
    Sketcher.Constraint("Equal", 3, 5),
    Sketcher.Constraint("Equal", 1, 7),
    Sketcher.Constraint("Equal", 5, 9),
    Sketcher.Constraint("Equal", 7, 11),
    Sketcher.Constraint("Equal", 9, 13),
    Sketcher.Constraint("Equal", 11, 15),
    Sketcher.Constraint("Equal", 13, 17),
    Sketcher.Constraint("Equal", 15, 19),
    Sketcher.Constraint("Equal", 17, 21),
    Sketcher.Constraint("Equal", 19, 23),
    Sketcher.Constraint("Equal", 21, 25),
    Sketcher.Constraint("Equal", 23, 27),
    Sketcher.Constraint("Equal", 25, 29),
    Sketcher.Constraint("Equal", 27, 31),
    Sketcher.Constraint("Symmetric", 9, 3, 17, 3, -1, 1),
    Sketcher.Constraint("Symmetric", 1, 3, 25, 3, -1, 1),
    Sketcher.Constraint("PointOnObject", 1, 3, -2),
    Sketcher.Constraint("PointOnObject", 9, 3, -2),
    Sketcher.Constraint("PointOnObject", 0, 2, -2),
    Sketcher.Constraint("PointOnObject", 5, 1, -2),
    Sketcher.Constraint("PointOnObject", 9, 1, -2),
    Sketcher.Constraint("PointOnObject", 13, 1, -2),
    Sketcher.Constraint("PointOnObject", 17, 1, -2),
    Sketcher.Constraint("PointOnObject", 21, 1, -2),
    Sketcher.Constraint("PointOnObject", 25, 1, -2),
    Sketcher.Constraint("PointOnObject", 29, 1, -2),
    Sketcher.Constraint("Parallel", 2, 4),
    Sketcher.Constraint("Parallel", 4, 8),
    Sketcher.Constraint("Parallel", 8, 12),
    Sketcher.Constraint("Parallel", 12, 16),
    Sketcher.Constraint("Parallel", 16, 20),
    Sketcher.Constraint("Parallel", 20, 24),
    Sketcher.Constraint("Parallel", 24, 28),
    Sketcher.Constraint("Vertical", 2, 2, 8, 2),
    Sketcher.Constraint("Vertical", 4, 2, 12, 2),
    Sketcher.Constraint("Vertical", 8, 2, 16, 2),
    Sketcher.Constraint("Vertical", 12, 2, 20, 2),
    Sketcher.Constraint("Vertical", 16, 2, 24, 2),
    Sketcher.Constraint("Vertical", 20, 2, 28, 2),
    Sketcher.Constraint("Radius", 3, Q("40 mm")),
    Sketcher.Constraint("Radius", 1, Q("37.5 mm")),
    Sketcher.Constraint("Angle", 2, Q("135 deg")),
    Sketcher.Constraint("DistanceY", 1, 3, -1, 1, Q("135 mm")),
    Sketcher.Constraint("DistanceY", 9, 3, -1, 1, Q("45 mm")),
    Sketcher.Constraint("DistanceX", 2, 2, -1, 1, Q("28.284271 mm")),
    Sketcher.Constraint("DistanceX", -1, 1, 4, 2, Q("28.284271 mm")),
])
pocket4 = doc.addObject("PartDesign::Pocket", "Pocket003")
body.addObject(pocket4)
pocket4.Profile = sketch7
pocket4.Length = 20
pocket4.Reversed = True

doc.recompute()
